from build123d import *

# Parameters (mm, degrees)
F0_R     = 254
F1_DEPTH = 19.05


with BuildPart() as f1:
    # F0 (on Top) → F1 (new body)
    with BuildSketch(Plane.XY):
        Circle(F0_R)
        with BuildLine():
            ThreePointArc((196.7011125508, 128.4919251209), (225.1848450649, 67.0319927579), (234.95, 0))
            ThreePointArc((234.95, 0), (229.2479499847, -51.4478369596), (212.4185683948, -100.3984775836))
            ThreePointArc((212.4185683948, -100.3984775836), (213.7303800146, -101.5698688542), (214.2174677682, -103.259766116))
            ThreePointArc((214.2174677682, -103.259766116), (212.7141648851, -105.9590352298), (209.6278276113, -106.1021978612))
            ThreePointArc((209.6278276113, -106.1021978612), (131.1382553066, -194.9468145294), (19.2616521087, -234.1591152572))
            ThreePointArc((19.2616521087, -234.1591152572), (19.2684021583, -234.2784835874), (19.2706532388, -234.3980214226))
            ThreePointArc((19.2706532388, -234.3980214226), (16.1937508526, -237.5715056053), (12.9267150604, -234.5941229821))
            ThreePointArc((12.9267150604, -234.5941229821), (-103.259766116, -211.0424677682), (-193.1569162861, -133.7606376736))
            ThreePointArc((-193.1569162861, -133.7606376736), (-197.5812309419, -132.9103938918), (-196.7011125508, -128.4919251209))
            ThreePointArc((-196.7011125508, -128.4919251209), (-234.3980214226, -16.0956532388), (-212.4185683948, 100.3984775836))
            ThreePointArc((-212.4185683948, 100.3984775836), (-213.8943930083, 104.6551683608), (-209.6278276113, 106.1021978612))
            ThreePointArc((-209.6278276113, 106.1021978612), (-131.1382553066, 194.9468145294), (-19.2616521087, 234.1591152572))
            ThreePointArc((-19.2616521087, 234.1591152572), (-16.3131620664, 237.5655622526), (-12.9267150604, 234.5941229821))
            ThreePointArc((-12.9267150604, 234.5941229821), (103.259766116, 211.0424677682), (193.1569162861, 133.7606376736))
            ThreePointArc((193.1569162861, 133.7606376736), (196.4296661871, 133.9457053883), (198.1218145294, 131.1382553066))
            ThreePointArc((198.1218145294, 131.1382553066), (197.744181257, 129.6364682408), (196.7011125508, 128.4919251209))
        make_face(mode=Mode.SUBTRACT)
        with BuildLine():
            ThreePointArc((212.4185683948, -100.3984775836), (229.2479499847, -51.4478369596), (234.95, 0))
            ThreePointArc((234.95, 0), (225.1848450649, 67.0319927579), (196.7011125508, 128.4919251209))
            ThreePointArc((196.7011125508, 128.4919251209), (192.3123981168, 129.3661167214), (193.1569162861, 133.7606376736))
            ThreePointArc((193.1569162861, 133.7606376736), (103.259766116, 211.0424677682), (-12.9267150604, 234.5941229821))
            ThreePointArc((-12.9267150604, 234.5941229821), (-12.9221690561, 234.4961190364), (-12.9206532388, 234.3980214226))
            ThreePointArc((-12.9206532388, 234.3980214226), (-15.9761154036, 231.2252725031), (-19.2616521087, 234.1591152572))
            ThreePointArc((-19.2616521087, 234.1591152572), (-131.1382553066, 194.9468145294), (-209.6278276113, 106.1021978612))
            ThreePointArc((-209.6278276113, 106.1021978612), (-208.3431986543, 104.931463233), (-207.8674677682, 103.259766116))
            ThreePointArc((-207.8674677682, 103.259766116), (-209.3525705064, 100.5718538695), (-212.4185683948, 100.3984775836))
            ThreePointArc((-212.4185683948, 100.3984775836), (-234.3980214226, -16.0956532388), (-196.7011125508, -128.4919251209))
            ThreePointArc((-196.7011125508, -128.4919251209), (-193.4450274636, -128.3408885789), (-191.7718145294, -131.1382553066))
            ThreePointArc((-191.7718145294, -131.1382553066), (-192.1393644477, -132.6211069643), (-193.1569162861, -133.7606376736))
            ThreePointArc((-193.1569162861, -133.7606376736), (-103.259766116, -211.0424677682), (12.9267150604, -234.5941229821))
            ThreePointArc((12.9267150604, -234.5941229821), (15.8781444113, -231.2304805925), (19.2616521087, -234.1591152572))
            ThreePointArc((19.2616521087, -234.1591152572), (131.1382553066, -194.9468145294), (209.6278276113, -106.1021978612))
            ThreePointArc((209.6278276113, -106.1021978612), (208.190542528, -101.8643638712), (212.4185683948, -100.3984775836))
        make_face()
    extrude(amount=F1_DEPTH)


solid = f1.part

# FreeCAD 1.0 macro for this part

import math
import FreeCAD as App
import Part
import Sketcher
from FreeCAD import Vector
Q = App.Units.Quantity

doc = App.newDocument("Part")
params = doc.addObject("Spreadsheet::Sheet", "Params")
for row, (alias, value) in enumerate([
    ("sketch1_diameter", "20 in"),
    ("sketch1_radius", "0.125 in"),
    ("pad1_length", "0.75 in"),
], start=1):
    params.set(f"A{row}", alias)
    params.set(f"B{row}", "=" + value)
    params.setAlias(f"B{row}", alias)

body = doc.addObject("PartDesign::Body", "Body")

sketch1 = body.newObject("Sketcher::SketchObject", "Sketch")
sketch1.AttachmentSupport = (doc.getObject("XY_Plane"), [""])
sketch1.MapMode = "FlatFace"
sketch1.addGeometry([
    Part.Circle(Vector(0, 0, 0), Vector(0, 0, 1), 254),
    Part.ArcOfCircle(Part.Circle(Vector(194.95, 131.14, 0), Vector(0, 0, 1), 3.17), math.radians(-56), math.radians(0)),
    Part.ArcOfCircle(Part.Circle(Vector(194.95, 131.14, 0), Vector(0, 0, 1), 3.17), math.radians(124), math.radians(304)),
    Part.ArcOfCircle(Part.Circle(Vector(194.95, 131.14, 0), Vector(0, 0, 1), 3.17), math.radians(0), math.radians(124)),
    Part.ArcOfCircle(Part.Circle(Vector(-16.1, 234.4, 0), Vector(0, 0, 1), 3.17), math.radians(4), math.radians(184)),
    Part.ArcOfCircle(Part.Circle(Vector(-16.1, 234.4, 0), Vector(0, 0, 1), 3.18), math.radians(0), math.radians(3.54)),
    Part.ArcOfCircle(Part.Circle(Vector(-16.1, 234.4, 0), Vector(0, 0, 1), 3.17), math.radians(-176), math.radians(0)),
    Part.ArcOfCircle(Part.Circle(Vector(-211.04, 103.26, 0), Vector(0, 0, 1), 3.17), math.radians(64), math.radians(244)),
    Part.ArcOfCircle(Part.Circle(Vector(-211.04, 103.26, 0), Vector(0, 0, 1), 3.17), math.radians(0), math.radians(64)),
    Part.ArcOfCircle(Part.Circle(Vector(-211.04, 103.26, 0), Vector(0, 0, 1), 3.17), math.radians(-116), math.radians(0)),
    Part.ArcOfCircle(Part.Circle(Vector(-194.95, -131.14, 0), Vector(0, 0, 1), 3.17), math.radians(124), math.radians(304)),
    Part.ArcOfCircle(Part.Circle(Vector(-194.95, -131.14, 0), Vector(0, 0, 1), 3.17), math.radians(0), math.radians(124)),
    Part.ArcOfCircle(Part.Circle(Vector(-194.95, -131.14, 0), Vector(0, 0, 1), 3.17), math.radians(-56), math.radians(0)),
    Part.ArcOfCircle(Part.Circle(Vector(16.1, -234.4, 0), Vector(0, 0, 1), 3.17), math.radians(-176), math.radians(0)),
    Part.ArcOfCircle(Part.Circle(Vector(16.1, -234.4, 0), Vector(0, 0, 1), 3.17), math.radians(4), math.radians(184)),
    Part.ArcOfCircle(Part.Circle(Vector(16.1, -234.4, 0), Vector(0, 0, 1), 3.17), math.radians(0), math.radians(4.32)),
    Part.ArcOfCircle(Part.Circle(Vector(211.04, -103.26, 0), Vector(0, 0, 1), 3.17), math.radians(-116), math.radians(0)),
    Part.ArcOfCircle(Part.Circle(Vector(211.04, -103.26, 0), Vector(0, 0, 1), 3.17), math.radians(64), math.radians(244)),
    Part.ArcOfCircle(Part.Circle(Vector(211.04, -103.26, 0), Vector(0, 0, 1), 3.17), math.radians(0), math.radians(64)),
], False)
sketch1.addConstraint([
    Sketcher.Constraint("Tangent", 1, 1, 2, 2),
    Sketcher.Constraint("Tangent", 2, 1, 3, 2),
    Sketcher.Constraint("Tangent", 3, 1, 1, 2),
    Sketcher.Constraint("Tangent", 4, 1, 5, 2),
    Sketcher.Constraint("Tangent", 5, 1, 6, 2),
    Sketcher.Constraint("Tangent", 6, 1, 4, 2),
    Sketcher.Constraint("Tangent", 7, 1, 8, 2),
    Sketcher.Constraint("Tangent", 8, 1, 9, 2),
    Sketcher.Constraint("Tangent", 9, 1, 7, 2),
    Sketcher.Constraint("Tangent", 10, 1, 11, 2),
    Sketcher.Constraint("Tangent", 11, 1, 12, 2),
    Sketcher.Constraint("Tangent", 12, 1, 10, 2),
    Sketcher.Constraint("Tangent", 13, 1, 14, 2),
    Sketcher.Constraint("Tangent", 14, 1, 15, 2),
    Sketcher.Constraint("Tangent", 15, 1, 13, 2),
    Sketcher.Constraint("Tangent", 16, 1, 17, 2),
    Sketcher.Constraint("Tangent", 17, 1, 18, 2),
    Sketcher.Constraint("Tangent", 18, 1, 16, 2),
    Sketcher.Constraint("Coincident", 0, 3, -1, 1),
    Sketcher.Constraint("Equal", 3, 4),
    Sketcher.Constraint("Equal", 6, 7),
    Sketcher.Constraint("Equal", 9, 10),
    Sketcher.Constraint("Equal", 12, 13),
    Sketcher.Constraint("Equal", 15, 16),
    Sketcher.Constraint("Symmetric", 1, 3, 10, 3, -1, 1),
    Sketcher.Constraint("Symmetric", 4, 3, 13, 3, -1, 1),
    Sketcher.Constraint("Symmetric", 7, 3, 16, 3, -1, 1),
    Sketcher.Constraint("Horizontal", 2, 3, 3, 1),
    Sketcher.Constraint("Horizontal", 6, 3, 5, 1),
    Sketcher.Constraint("Horizontal", 9, 3, 8, 1),
    Sketcher.Constraint("Horizontal", 12, 3, 11, 1),
    Sketcher.Constraint("Horizontal", 14, 3, 15, 1),
    Sketcher.Constraint("Horizontal", 17, 3, 18, 1),
    Sketcher.Constraint("Diameter", 0, Q("20 in")),
    Sketcher.Constraint("Radius", 1, Q("0.125 in")),
    Sketcher.Constraint("DistanceX", 1, 3, 1, 1, Q("1.754298 mm")),
    Sketcher.Constraint("DistanceX", 2, 1, 1, 3, Q("1.789898 mm")),
    Sketcher.Constraint("DistanceY", 4, 3, 4, 1, Q("0.196102 mm")),
    Sketcher.Constraint("DistanceX", 6, 1, 5, 3, Q("3.165999 mm")),
    Sketcher.Constraint("DistanceX", 9, 1, 7, 3, Q("1.376101 mm")),
    Sketcher.Constraint("DistanceX", 10, 1, 12, 3, Q("1.754298 mm")),
    Sketcher.Constraint("DistanceX", 12, 1, 11, 1, Q("1.385102 mm")),
    Sketcher.Constraint("DistanceY", 13, 1, 13, 3, Q("0.196102 mm")),
    Sketcher.Constraint("DistanceX", 15, 3, 14, 1, Q("3.165999 mm")),
    Sketcher.Constraint("DistanceX", 16, 3, 17, 1, Q("1.376101 mm")),
    Sketcher.Constraint("DistanceY", -1, 1, 4, 3, Q("234.398021 mm")),
    Sketcher.Constraint("DistanceX", 9, 1, -1, 1, Q("212.418568 mm")),
    Sketcher.Constraint("DistanceY", 7, 3, 1, 3, Q("27.878489 mm")),
    Sketcher.Constraint("DistanceY", 10, 3, 7, 3, Q("234.398021 mm")),
    Sketcher.Constraint("DistanceX", 10, 3, 5, 3, Q("178.851161 mm")),
    Sketcher.Constraint("DistanceX", 7, 3, 13, 3, Q("227.138121 mm")),
    Sketcher.Constraint("DistanceX", 7, 3, 7, 1, Q("1.41464 mm")),
    Sketcher.Constraint("DistanceX", 16, 1, 16, 3, Q("1.41464 mm")),
])
sketch1.setExpression("Constraints[33]", "Params.sketch1_diameter")
sketch1.setExpression("Constraints[34]", "Params.sketch1_radius")
pad1 = body.newObject("PartDesign::Pad", "Pad")
pad1.Profile = sketch1
pad1.setExpression("Length", "Params.pad1_length")

doc.recompute()
